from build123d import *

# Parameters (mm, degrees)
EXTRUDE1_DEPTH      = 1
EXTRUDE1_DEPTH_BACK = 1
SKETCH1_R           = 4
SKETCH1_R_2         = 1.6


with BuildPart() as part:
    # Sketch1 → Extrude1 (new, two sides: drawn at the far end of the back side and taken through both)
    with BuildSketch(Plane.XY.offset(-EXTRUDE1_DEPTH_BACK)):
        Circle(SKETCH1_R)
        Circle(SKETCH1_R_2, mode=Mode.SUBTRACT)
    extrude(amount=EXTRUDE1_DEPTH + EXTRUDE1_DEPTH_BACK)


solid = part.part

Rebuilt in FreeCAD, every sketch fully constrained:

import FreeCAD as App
import Part
import Sketcher
Q = App.Units.Quantity

doc = App.newDocument("Part")
body = doc.addObject("PartDesign::Body", "Body")

# Sketch on XY plane
sketch1 = doc.addObject("Sketcher::SketchObject", "Sketch")
body.addObject(sketch1)
sketch1.AttachmentSupport = (doc.XY_Plane, [""])
sketch1.MapMode = "FlatFace"
sketch1.addGeometry(Part.Circle(App.Vector(0, 0, 0), App.Vector(0, 0, 1), 4), False)
sketch1.addGeometry(Part.Circle(App.Vector(0, 0, 0), App.Vector(0, 0, 1), 1.6), False)
sketch1.addConstraint(Sketcher.Constraint("Coincident", 0, 3, -1, 1))
sketch1.addConstraint(Sketcher.Constraint("Coincident", 1, 3, -1, 1))
sketch1.addConstraint(Sketcher.Constraint("Diameter", 0, Q("8 mm")))
sketch1.addConstraint(Sketcher.Constraint("Diameter", 1, Q("3.2 mm")))
pad1 = doc.addObject("PartDesign::Pad", "Pad")
body.addObject(pad1)
pad1.Profile = sketch1
pad1.Type = "TwoLengths"
pad1.Length = 1
pad1.Length2 = 1

doc.recompute()
